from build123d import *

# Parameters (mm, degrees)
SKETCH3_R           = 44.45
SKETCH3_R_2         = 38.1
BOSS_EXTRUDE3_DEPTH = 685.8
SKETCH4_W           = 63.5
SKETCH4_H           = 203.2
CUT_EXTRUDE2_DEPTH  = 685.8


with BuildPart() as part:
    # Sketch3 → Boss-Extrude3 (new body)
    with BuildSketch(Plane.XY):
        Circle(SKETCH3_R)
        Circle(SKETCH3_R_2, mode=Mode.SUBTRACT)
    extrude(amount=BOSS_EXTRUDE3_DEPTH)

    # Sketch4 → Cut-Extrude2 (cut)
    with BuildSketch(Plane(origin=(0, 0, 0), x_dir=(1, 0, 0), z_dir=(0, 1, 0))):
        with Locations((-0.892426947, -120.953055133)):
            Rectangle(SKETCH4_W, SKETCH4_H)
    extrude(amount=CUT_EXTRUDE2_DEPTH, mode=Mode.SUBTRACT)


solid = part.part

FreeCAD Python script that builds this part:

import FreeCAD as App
import Part
import Sketcher
Q = App.Units.Quantity


def add_polygon(sketch, points):
    """Adds a closed chain of lines whose ends are joined by coincident constraints."""
    first, n = sketch.GeometryCount, len(points)
    for a, b in zip(points, points[1:] + points[:1]):
        sketch.addGeometry(Part.LineSegment(App.Vector(*a, 0), App.Vector(*b, 0)), False)
    for i in range(n):
        sketch.addConstraint(Sketcher.Constraint("Coincident", first + i, 2, first + (i + 1) % n, 1))

doc = App.newDocument("Part")
body = doc.addObject("PartDesign::Body", "Body")

# Sketch on XY plane
sketch1 = body.newObject("Sketcher::SketchObject", "Sketch")
sketch1.AttachmentSupport = (doc.getObject("XY_Plane"), [""])
sketch1.MapMode = "FlatFace"
sketch1.addGeometry([
    Part.Circle(App.Vector(0, 0, 0), App.Vector(0, 0, 1), 44.45),
    Part.Circle(App.Vector(0, 0, 0), App.Vector(0, 0, 1), 38.1),
], False)
sketch1.addConstraint([
    Sketcher.Constraint("Coincident", 0, 3, -1, 1),
    Sketcher.Constraint("Coincident", 1, 3, -1, 1),
    Sketcher.Constraint("Diameter", 1, Q("3 in")),
    Sketcher.Constraint("Diameter", 0, Q("3.5 in")),
])
pad1 = body.newObject("PartDesign::Pad", "Pad")
pad1.Profile = sketch1
pad1.Length = Q("27 in")

# Sketch on XZ plane
sketch2 = body.newObject("Sketcher::SketchObject", "Sketch001")
sketch2.AttachmentSupport = (doc.getObject("XZ_Plane"), [""])
sketch2.MapMode = "FlatFace"
add_polygon(sketch2, [(-32.642427, 19.353055), (-32.642427, 222.553055), (30.857573, 222.553055), (30.857573, 19.353055)])  # lines 0-3
sketch2.addConstraint([
    Sketcher.Constraint("Vertical", 0),
    Sketcher.Constraint("Horizontal", 1),
    Sketcher.Constraint("Vertical", 2),
    Sketcher.Constraint("Horizontal", 3),
    Sketcher.Constraint("DistanceY", 0, 1, 0, 2, Q("8 in")),
    Sketcher.Constraint("DistanceX", 1, 1, 1, 2, Q("2.5 in")),
    Sketcher.Constraint("DistanceX", 0, 2, -1, 1, Q("32.642427 mm")),
    Sketcher.Constraint("DistanceY", -1, 1, 0, 2, Q("222.553055 mm")),
])
pocket1 = body.newObject("PartDesign::Pocket", "Pocket")
pocket1.Profile = sketch2
pocket1.Length = Q("27 in")

doc.recompute()
